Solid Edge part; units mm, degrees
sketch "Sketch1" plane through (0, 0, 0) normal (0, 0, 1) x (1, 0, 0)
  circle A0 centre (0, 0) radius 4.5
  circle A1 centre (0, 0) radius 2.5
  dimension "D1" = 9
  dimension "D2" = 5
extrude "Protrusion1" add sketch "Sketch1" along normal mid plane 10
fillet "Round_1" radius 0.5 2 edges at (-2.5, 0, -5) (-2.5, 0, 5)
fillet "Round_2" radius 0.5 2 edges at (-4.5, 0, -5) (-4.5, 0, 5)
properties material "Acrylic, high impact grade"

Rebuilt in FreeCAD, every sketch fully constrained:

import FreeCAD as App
import Part
import Sketcher

V = App.Vector
Q = App.Units.Quantity


def edges_at(feature, points):
    """Names of the edges that pass closest to the given points."""
    edges = feature.Shape.Edges
    near = lambda p: min(range(len(edges)), key=lambda i: edges[i].distToShape(Part.Vertex(*p))[0])
    return sorted({f"Edge{near(p) + 1}" for p in points})

doc = App.newDocument("Part")
body = doc.addObject("PartDesign::Body", "Body")

sketch1 = doc.addObject("Sketcher::SketchObject", "Sketch")
body.addObject(sketch1)
sketch1.AttachmentSupport = (doc.XY_Plane, [""])
sketch1.MapMode = "FlatFace"
sketch1.addGeometry(Part.Circle(V(0, 0, 0), V(0, 0, 1), 4.5), False)
sketch1.addGeometry(Part.Circle(V(0, 0, 0), V(0, 0, 1), 2.5), False)
sketch1.addConstraint(Sketcher.Constraint("Coincident", 0, 3, -1, 1))
sketch1.addConstraint(Sketcher.Constraint("Coincident", 1, 3, -1, 1))
sketch1.addConstraint(Sketcher.Constraint("Diameter", 0, Q("9 mm")))
sketch1.addConstraint(Sketcher.Constraint("Diameter", 1, Q("5 mm")))
pad1 = doc.addObject("PartDesign::Pad", "Pad")
body.addObject(pad1)
pad1.Profile = sketch1
pad1.Length = 10
pad1.Midplane = True
doc.recompute()

fillet = doc.addObject("PartDesign::Fillet", "Fillet")
body.addObject(fillet)
fillet.Base = (pad1, edges_at(pad1, [(-2.5, 0, -5), (-2.5, 0, 5)]))
fillet.Radius = 0.5
doc.recompute()

fillet2 = doc.addObject("PartDesign::Fillet", "Fillet001")
body.addObject(fillet2)
fillet2.Base = (fillet, edges_at(fillet, [(-4.5, 0, -5), (-4.5, 0, 5)]))
fillet2.Radius = 0.5

doc.recompute()
